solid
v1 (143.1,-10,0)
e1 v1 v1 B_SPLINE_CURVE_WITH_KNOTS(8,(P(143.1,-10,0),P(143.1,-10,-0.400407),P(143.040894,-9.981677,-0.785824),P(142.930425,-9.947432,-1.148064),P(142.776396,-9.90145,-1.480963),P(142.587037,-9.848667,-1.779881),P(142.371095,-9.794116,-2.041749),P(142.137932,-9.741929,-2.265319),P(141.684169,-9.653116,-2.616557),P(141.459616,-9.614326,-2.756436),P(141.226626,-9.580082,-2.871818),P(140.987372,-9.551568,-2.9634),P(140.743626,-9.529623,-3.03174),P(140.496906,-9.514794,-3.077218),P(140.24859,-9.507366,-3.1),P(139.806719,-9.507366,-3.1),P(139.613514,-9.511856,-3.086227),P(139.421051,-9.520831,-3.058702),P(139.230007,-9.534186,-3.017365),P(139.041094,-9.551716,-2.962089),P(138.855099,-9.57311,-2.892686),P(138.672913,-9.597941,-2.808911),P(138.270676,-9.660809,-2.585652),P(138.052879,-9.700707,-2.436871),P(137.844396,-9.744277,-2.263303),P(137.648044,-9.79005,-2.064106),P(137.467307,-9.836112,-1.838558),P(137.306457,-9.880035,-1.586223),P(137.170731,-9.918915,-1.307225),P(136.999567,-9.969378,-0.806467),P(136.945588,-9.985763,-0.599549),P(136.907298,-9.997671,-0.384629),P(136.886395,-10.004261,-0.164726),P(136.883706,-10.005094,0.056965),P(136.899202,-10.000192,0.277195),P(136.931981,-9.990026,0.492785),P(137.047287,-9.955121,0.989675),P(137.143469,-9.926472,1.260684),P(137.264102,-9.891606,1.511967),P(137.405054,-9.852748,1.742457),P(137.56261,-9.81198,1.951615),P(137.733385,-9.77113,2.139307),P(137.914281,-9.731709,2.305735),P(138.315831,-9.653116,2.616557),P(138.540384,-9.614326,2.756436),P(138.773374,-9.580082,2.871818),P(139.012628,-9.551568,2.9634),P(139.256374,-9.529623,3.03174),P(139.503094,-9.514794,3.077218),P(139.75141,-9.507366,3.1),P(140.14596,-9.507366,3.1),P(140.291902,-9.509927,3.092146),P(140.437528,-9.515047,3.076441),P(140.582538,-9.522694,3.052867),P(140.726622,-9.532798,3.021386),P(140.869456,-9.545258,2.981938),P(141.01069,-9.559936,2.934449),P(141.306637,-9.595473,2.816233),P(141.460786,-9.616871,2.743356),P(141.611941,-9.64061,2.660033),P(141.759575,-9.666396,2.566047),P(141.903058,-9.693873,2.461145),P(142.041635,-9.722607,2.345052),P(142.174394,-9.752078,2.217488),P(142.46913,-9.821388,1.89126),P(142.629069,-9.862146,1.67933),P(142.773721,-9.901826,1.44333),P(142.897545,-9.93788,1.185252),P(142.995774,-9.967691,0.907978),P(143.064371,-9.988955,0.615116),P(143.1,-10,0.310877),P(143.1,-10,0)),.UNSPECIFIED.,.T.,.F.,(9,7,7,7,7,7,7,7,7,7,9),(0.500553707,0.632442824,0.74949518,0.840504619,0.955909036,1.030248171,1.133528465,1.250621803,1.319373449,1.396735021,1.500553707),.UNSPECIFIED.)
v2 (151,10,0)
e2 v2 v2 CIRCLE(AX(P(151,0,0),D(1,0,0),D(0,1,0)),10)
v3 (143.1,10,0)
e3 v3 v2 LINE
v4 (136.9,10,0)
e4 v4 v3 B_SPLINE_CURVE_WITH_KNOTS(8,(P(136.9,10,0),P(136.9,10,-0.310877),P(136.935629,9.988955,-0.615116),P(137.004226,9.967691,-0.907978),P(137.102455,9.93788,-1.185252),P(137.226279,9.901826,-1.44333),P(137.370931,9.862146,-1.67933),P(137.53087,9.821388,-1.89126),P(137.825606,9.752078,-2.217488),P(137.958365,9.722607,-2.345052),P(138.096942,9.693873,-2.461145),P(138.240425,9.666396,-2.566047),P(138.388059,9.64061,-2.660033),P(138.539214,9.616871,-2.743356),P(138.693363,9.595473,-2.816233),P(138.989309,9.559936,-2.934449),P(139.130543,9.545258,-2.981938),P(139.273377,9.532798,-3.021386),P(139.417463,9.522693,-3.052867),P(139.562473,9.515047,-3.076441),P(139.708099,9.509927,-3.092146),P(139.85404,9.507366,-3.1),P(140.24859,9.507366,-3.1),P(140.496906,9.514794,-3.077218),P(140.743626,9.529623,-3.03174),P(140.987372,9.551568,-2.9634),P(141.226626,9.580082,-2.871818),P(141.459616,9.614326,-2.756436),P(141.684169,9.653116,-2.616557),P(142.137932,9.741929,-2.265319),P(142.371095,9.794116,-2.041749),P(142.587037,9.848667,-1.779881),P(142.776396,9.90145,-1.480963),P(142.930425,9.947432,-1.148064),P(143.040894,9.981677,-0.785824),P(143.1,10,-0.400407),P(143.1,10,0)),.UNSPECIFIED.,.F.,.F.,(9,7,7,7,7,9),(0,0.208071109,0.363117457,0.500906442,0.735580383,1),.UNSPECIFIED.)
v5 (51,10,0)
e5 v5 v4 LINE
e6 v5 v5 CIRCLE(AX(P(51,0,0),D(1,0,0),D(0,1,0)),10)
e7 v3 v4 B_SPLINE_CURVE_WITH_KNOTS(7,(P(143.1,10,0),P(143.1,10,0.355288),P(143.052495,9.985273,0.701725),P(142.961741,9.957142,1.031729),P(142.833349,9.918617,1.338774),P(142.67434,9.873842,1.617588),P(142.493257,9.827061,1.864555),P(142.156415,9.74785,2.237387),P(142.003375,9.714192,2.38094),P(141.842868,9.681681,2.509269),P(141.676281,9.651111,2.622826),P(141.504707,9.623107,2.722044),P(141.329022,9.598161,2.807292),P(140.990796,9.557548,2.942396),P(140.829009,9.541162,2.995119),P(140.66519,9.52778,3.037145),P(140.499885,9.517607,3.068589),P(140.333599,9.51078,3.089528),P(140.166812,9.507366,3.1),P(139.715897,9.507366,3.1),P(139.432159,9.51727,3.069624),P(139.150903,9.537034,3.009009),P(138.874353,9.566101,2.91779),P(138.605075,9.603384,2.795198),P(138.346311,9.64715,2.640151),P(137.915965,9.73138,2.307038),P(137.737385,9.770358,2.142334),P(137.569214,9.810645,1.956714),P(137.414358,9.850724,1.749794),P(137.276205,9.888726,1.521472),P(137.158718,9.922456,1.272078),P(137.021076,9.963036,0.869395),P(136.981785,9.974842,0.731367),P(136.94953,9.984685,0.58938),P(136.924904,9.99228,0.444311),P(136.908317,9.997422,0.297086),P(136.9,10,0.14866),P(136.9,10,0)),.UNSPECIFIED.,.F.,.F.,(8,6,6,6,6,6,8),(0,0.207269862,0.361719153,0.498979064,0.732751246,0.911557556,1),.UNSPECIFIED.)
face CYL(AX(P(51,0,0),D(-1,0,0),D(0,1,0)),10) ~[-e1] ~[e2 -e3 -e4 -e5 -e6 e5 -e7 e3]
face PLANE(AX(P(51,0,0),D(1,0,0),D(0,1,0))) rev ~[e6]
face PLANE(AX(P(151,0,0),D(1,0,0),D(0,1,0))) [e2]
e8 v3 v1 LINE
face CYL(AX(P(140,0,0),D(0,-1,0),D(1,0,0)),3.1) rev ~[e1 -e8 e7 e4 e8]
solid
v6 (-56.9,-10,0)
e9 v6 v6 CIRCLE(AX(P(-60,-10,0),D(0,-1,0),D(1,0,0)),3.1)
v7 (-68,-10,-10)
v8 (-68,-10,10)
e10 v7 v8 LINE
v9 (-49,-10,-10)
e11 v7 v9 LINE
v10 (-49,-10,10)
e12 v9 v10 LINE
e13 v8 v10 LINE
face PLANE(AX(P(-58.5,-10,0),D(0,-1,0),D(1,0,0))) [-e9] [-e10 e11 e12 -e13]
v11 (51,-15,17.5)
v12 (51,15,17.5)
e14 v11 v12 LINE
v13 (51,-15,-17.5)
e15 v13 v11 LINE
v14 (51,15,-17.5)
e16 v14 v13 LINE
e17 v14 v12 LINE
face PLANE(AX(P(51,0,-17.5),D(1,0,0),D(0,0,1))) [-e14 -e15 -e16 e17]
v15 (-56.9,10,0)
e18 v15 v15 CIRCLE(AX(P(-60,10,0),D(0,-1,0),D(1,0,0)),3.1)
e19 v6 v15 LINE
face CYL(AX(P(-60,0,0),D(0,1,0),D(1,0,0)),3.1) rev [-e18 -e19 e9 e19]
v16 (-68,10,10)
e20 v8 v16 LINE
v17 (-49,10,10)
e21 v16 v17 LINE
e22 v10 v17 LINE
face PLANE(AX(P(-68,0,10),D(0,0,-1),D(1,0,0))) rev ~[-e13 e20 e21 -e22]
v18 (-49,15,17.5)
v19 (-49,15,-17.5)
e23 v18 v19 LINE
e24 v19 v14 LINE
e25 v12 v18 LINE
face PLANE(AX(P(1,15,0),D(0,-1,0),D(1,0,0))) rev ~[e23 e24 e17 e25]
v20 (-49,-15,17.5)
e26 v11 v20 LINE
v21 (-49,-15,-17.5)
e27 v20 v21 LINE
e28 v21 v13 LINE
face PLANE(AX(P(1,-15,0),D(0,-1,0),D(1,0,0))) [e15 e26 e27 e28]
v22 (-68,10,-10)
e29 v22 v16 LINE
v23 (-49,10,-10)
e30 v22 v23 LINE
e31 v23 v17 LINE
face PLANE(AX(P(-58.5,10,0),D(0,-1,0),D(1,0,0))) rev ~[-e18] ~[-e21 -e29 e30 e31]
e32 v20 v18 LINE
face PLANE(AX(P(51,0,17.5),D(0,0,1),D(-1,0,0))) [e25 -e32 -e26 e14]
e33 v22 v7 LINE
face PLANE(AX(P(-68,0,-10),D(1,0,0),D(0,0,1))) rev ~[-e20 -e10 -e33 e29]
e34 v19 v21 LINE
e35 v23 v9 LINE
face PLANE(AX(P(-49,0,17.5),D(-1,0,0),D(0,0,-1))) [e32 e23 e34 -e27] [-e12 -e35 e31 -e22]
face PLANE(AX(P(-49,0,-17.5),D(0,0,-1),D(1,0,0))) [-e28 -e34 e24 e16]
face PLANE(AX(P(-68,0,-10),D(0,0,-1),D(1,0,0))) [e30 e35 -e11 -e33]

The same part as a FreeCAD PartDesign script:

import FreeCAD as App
import Part
import Sketcher

V = App.Vector
Q = App.Units.Quantity

doc = App.newDocument("Part")
body = doc.addObject("PartDesign::Body", "Body")

sketch1 = doc.addObject("Sketcher::SketchObject", "Sketch")
body.addObject(sketch1)
sketch1.AttachmentSupport = (doc.XZ_Plane, [""])
sketch1.MapMode = "FlatFace"
sketch1.addGeometry([
    Part.LineSegment(V(-68, 10, 0), V(-68, -10, 0)),
    Part.LineSegment(V(-68, -10, 0), V(-49, -10, 0)),
    Part.LineSegment(V(-49, -10, 0), V(-49, 10, 0)),
    Part.LineSegment(V(-49, 10, 0), V(-68, 10, 0)),
    Part.Circle(V(-60, 0, 0), V(0, 0, 1), 3.1),
], False)
sketch1.addConstraint([
    Sketcher.Constraint("Coincident", 0, 2, 1, 1),
    Sketcher.Constraint("Coincident", 1, 2, 2, 1),
    Sketcher.Constraint("Coincident", 2, 2, 3, 1),
    Sketcher.Constraint("Coincident", 3, 2, 0, 1),
    Sketcher.Constraint("Vertical", 0),
    Sketcher.Constraint("Horizontal", 1),
    Sketcher.Constraint("Vertical", 2),
    Sketcher.Constraint("Horizontal", 3),
    Sketcher.Constraint("PointOnObject", 4, 3, -1),
    Sketcher.Constraint("Diameter", 4, Q("6.2 mm")),
    Sketcher.Constraint("DistanceX", 1, 1, 1, 2, Q("19 mm")),
    Sketcher.Constraint("DistanceY", 0, 2, 0, 1, Q("20 mm")),
    Sketcher.Constraint("DistanceX", 4, 3, -1, 1, Q("60 mm")),
    Sketcher.Constraint("DistanceX", 0, 2, -1, 1, Q("68 mm")),
    Sketcher.Constraint("DistanceY", 0, 2, -1, 1, Q("10 mm")),
])
pad1 = doc.addObject("PartDesign::Pad", "Pad")
body.addObject(pad1)
pad1.Profile = sketch1
pad1.Length = 20
pad1.Midplane = True

sketch2 = doc.addObject("Sketcher::SketchObject", "Sketch001")
body.addObject(sketch2)
sketch2.AttachmentSupport = (doc.XZ_Plane, [""])
sketch2.MapMode = "FlatFace"
sketch2.addGeometry([
    Part.LineSegment(V(-49, 18, 0), V(-49, -18, 0)),
    Part.LineSegment(V(-49, -18, 0), V(51, -18, 0)),
    Part.LineSegment(V(51, -18, 0), V(51, 18, 0)),
    Part.LineSegment(V(51, 18, 0), V(-49, 18, 0)),
], False)
sketch2.addConstraint([
    Sketcher.Constraint("Coincident", 0, 2, 1, 1),
    Sketcher.Constraint("Coincident", 1, 2, 2, 1),
    Sketcher.Constraint("Coincident", 2, 2, 3, 1),
    Sketcher.Constraint("Coincident", 3, 2, 0, 1),
    Sketcher.Constraint("Vertical", 0),
    Sketcher.Constraint("Horizontal", 1),
    Sketcher.Constraint("Vertical", 2),
    Sketcher.Constraint("Horizontal", 3),
    Sketcher.Constraint("DistanceX", 1, 1, 1, 2, Q("100 mm")),
    Sketcher.Constraint("DistanceY", 0, 2, 0, 1, Q("35 mm")),
    Sketcher.Constraint("DistanceX", 0, 2, -1, 1, Q("49 mm")),
    Sketcher.Constraint("DistanceY", 0, 2, -1, 1, Q("17.5 mm")),
])
pad2 = doc.addObject("PartDesign::Pad", "Pad001")
body.addObject(pad2)
pad2.Profile = sketch2
pad2.Length = 30
pad2.Midplane = True
body2 = doc.addObject("PartDesign::Body", "Body001")

sketch3 = doc.addObject("Sketcher::SketchObject", "Sketch002")
body2.addObject(sketch3)
sketch3.AttachmentSupport = (doc.getObject("YZ_Plane001"), [""])
sketch3.MapMode = "FlatFace"
sketch3.AttachmentOffset = App.Placement(V(0, 0, 51), App.Rotation())
sketch3.addGeometry(Part.Circle(V(0, 0, 0), V(0, 0, 1), 10), False)
sketch3.addConstraint([
    Sketcher.Constraint("Coincident", 0, 3, -1, 1),
    Sketcher.Constraint("Diameter", 0, Q("20 mm")),
])
pad3 = doc.addObject("PartDesign::Pad", "Pad002")
body2.addObject(pad3)
pad3.Profile = sketch3
pad3.Length = 100

sketch4 = doc.addObject("Sketcher::SketchObject", "Sketch003")
body2.addObject(sketch4)
sketch4.AttachmentSupport = (doc.getObject("XZ_Plane001"), [""])
sketch4.MapMode = "FlatFace"
sketch4.addGeometry(Part.Circle(V(140, 0, 0), V(0, 0, 1), 3.1), False)
sketch4.addConstraint([
    Sketcher.Constraint("PointOnObject", 0, 3, -1),
    Sketcher.Constraint("Diameter", 0, Q("6.2 mm")),
    Sketcher.Constraint("DistanceX", -1, 1, 0, 3, Q("140 mm")),
])
pocket1 = doc.addObject("PartDesign::Pocket", "Pocket")
body2.addObject(pocket1)
pocket1.Profile = sketch4
pocket1.Length = 20
pocket1.Midplane = True

doc.recompute()
